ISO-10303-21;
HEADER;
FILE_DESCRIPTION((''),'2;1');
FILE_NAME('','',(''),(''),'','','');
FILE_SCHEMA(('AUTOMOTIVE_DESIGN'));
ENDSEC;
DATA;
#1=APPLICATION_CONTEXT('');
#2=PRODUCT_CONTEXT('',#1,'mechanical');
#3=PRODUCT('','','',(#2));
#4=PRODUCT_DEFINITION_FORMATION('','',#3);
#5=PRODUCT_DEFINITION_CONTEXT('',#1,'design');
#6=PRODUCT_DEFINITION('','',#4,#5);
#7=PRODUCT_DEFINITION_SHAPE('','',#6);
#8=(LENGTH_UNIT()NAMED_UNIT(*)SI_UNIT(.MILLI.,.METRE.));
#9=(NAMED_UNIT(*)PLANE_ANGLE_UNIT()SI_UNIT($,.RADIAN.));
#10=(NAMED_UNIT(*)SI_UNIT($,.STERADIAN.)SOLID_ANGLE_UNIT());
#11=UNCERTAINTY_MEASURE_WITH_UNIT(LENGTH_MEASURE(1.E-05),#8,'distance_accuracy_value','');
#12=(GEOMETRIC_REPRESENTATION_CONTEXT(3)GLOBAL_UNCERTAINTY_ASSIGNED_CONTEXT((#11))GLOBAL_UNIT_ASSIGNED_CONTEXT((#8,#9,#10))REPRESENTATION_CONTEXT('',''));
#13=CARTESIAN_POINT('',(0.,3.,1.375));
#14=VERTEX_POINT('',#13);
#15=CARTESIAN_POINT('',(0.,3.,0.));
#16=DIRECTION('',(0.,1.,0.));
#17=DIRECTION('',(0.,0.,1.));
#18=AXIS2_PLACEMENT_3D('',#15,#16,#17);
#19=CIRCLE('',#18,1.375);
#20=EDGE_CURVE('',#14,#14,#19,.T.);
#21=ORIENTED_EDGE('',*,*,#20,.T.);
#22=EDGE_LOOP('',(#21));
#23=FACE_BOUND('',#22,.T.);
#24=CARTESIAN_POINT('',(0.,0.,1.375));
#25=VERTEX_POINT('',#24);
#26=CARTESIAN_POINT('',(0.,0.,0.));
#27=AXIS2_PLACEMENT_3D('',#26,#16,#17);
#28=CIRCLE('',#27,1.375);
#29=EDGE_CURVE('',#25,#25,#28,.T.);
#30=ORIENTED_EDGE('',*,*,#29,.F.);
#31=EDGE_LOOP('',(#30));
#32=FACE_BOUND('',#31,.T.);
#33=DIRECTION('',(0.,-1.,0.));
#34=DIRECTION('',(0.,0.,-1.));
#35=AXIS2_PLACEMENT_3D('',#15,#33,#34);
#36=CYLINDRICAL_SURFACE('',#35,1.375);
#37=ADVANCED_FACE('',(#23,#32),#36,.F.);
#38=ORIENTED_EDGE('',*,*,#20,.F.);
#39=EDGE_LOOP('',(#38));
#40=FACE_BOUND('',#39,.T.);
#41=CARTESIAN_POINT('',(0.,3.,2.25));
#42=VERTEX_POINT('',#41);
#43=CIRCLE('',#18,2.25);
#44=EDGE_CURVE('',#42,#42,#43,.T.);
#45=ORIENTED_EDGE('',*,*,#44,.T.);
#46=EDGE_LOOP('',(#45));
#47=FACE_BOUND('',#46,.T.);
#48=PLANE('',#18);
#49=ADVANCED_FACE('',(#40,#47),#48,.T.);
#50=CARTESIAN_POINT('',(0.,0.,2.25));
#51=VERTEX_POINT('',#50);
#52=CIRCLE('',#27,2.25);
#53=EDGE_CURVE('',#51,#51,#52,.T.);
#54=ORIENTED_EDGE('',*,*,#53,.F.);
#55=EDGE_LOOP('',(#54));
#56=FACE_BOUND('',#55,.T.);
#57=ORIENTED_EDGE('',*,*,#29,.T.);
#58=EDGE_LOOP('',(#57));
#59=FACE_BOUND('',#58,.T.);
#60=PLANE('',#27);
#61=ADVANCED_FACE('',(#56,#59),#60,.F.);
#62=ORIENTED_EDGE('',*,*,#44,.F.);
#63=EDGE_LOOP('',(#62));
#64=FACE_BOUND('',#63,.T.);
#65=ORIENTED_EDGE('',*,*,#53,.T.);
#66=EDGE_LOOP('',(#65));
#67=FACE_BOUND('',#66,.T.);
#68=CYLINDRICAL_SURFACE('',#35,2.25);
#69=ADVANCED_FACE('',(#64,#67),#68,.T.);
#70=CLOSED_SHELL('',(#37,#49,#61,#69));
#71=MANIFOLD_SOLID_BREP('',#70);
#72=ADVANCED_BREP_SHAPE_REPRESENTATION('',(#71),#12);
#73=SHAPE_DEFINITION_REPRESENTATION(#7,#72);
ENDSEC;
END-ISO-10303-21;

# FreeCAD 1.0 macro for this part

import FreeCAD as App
import Part
import Sketcher
from FreeCAD import Vector

doc = App.newDocument("Part")
body = doc.addObject("PartDesign::Body", "Body")

# Sketch on XZ plane
sketch1 = body.newObject("Sketcher::SketchObject", "Sketch")
sketch1.AttachmentSupport = (doc.getObject("XZ_Plane"), [""])
sketch1.MapMode = "FlatFace"
sketch1.addGeometry(Part.Circle(Vector(0, 0, 0), Vector(0, 0, 1), 2.2), False)
sketch1.addGeometry(Part.Circle(Vector(0, 0, 0), Vector(0, 0, 1), 1.4), False)
sketch1.addConstraint(Sketcher.Constraint("Coincident", 0, 3, -1, 1))
sketch1.addConstraint(Sketcher.Constraint("Coincident", 1, 3, -1, 1))
sketch1.addConstraint(Sketcher.Constraint("Diameter", 0, 4.5))
sketch1.addConstraint(Sketcher.Constraint("Diameter", 1, 2.75))
pad1 = body.newObject("PartDesign::Pad", "Pad")
pad1.Profile = sketch1
pad1.Length = 3
pad1.Reversed = True

doc.recompute()
